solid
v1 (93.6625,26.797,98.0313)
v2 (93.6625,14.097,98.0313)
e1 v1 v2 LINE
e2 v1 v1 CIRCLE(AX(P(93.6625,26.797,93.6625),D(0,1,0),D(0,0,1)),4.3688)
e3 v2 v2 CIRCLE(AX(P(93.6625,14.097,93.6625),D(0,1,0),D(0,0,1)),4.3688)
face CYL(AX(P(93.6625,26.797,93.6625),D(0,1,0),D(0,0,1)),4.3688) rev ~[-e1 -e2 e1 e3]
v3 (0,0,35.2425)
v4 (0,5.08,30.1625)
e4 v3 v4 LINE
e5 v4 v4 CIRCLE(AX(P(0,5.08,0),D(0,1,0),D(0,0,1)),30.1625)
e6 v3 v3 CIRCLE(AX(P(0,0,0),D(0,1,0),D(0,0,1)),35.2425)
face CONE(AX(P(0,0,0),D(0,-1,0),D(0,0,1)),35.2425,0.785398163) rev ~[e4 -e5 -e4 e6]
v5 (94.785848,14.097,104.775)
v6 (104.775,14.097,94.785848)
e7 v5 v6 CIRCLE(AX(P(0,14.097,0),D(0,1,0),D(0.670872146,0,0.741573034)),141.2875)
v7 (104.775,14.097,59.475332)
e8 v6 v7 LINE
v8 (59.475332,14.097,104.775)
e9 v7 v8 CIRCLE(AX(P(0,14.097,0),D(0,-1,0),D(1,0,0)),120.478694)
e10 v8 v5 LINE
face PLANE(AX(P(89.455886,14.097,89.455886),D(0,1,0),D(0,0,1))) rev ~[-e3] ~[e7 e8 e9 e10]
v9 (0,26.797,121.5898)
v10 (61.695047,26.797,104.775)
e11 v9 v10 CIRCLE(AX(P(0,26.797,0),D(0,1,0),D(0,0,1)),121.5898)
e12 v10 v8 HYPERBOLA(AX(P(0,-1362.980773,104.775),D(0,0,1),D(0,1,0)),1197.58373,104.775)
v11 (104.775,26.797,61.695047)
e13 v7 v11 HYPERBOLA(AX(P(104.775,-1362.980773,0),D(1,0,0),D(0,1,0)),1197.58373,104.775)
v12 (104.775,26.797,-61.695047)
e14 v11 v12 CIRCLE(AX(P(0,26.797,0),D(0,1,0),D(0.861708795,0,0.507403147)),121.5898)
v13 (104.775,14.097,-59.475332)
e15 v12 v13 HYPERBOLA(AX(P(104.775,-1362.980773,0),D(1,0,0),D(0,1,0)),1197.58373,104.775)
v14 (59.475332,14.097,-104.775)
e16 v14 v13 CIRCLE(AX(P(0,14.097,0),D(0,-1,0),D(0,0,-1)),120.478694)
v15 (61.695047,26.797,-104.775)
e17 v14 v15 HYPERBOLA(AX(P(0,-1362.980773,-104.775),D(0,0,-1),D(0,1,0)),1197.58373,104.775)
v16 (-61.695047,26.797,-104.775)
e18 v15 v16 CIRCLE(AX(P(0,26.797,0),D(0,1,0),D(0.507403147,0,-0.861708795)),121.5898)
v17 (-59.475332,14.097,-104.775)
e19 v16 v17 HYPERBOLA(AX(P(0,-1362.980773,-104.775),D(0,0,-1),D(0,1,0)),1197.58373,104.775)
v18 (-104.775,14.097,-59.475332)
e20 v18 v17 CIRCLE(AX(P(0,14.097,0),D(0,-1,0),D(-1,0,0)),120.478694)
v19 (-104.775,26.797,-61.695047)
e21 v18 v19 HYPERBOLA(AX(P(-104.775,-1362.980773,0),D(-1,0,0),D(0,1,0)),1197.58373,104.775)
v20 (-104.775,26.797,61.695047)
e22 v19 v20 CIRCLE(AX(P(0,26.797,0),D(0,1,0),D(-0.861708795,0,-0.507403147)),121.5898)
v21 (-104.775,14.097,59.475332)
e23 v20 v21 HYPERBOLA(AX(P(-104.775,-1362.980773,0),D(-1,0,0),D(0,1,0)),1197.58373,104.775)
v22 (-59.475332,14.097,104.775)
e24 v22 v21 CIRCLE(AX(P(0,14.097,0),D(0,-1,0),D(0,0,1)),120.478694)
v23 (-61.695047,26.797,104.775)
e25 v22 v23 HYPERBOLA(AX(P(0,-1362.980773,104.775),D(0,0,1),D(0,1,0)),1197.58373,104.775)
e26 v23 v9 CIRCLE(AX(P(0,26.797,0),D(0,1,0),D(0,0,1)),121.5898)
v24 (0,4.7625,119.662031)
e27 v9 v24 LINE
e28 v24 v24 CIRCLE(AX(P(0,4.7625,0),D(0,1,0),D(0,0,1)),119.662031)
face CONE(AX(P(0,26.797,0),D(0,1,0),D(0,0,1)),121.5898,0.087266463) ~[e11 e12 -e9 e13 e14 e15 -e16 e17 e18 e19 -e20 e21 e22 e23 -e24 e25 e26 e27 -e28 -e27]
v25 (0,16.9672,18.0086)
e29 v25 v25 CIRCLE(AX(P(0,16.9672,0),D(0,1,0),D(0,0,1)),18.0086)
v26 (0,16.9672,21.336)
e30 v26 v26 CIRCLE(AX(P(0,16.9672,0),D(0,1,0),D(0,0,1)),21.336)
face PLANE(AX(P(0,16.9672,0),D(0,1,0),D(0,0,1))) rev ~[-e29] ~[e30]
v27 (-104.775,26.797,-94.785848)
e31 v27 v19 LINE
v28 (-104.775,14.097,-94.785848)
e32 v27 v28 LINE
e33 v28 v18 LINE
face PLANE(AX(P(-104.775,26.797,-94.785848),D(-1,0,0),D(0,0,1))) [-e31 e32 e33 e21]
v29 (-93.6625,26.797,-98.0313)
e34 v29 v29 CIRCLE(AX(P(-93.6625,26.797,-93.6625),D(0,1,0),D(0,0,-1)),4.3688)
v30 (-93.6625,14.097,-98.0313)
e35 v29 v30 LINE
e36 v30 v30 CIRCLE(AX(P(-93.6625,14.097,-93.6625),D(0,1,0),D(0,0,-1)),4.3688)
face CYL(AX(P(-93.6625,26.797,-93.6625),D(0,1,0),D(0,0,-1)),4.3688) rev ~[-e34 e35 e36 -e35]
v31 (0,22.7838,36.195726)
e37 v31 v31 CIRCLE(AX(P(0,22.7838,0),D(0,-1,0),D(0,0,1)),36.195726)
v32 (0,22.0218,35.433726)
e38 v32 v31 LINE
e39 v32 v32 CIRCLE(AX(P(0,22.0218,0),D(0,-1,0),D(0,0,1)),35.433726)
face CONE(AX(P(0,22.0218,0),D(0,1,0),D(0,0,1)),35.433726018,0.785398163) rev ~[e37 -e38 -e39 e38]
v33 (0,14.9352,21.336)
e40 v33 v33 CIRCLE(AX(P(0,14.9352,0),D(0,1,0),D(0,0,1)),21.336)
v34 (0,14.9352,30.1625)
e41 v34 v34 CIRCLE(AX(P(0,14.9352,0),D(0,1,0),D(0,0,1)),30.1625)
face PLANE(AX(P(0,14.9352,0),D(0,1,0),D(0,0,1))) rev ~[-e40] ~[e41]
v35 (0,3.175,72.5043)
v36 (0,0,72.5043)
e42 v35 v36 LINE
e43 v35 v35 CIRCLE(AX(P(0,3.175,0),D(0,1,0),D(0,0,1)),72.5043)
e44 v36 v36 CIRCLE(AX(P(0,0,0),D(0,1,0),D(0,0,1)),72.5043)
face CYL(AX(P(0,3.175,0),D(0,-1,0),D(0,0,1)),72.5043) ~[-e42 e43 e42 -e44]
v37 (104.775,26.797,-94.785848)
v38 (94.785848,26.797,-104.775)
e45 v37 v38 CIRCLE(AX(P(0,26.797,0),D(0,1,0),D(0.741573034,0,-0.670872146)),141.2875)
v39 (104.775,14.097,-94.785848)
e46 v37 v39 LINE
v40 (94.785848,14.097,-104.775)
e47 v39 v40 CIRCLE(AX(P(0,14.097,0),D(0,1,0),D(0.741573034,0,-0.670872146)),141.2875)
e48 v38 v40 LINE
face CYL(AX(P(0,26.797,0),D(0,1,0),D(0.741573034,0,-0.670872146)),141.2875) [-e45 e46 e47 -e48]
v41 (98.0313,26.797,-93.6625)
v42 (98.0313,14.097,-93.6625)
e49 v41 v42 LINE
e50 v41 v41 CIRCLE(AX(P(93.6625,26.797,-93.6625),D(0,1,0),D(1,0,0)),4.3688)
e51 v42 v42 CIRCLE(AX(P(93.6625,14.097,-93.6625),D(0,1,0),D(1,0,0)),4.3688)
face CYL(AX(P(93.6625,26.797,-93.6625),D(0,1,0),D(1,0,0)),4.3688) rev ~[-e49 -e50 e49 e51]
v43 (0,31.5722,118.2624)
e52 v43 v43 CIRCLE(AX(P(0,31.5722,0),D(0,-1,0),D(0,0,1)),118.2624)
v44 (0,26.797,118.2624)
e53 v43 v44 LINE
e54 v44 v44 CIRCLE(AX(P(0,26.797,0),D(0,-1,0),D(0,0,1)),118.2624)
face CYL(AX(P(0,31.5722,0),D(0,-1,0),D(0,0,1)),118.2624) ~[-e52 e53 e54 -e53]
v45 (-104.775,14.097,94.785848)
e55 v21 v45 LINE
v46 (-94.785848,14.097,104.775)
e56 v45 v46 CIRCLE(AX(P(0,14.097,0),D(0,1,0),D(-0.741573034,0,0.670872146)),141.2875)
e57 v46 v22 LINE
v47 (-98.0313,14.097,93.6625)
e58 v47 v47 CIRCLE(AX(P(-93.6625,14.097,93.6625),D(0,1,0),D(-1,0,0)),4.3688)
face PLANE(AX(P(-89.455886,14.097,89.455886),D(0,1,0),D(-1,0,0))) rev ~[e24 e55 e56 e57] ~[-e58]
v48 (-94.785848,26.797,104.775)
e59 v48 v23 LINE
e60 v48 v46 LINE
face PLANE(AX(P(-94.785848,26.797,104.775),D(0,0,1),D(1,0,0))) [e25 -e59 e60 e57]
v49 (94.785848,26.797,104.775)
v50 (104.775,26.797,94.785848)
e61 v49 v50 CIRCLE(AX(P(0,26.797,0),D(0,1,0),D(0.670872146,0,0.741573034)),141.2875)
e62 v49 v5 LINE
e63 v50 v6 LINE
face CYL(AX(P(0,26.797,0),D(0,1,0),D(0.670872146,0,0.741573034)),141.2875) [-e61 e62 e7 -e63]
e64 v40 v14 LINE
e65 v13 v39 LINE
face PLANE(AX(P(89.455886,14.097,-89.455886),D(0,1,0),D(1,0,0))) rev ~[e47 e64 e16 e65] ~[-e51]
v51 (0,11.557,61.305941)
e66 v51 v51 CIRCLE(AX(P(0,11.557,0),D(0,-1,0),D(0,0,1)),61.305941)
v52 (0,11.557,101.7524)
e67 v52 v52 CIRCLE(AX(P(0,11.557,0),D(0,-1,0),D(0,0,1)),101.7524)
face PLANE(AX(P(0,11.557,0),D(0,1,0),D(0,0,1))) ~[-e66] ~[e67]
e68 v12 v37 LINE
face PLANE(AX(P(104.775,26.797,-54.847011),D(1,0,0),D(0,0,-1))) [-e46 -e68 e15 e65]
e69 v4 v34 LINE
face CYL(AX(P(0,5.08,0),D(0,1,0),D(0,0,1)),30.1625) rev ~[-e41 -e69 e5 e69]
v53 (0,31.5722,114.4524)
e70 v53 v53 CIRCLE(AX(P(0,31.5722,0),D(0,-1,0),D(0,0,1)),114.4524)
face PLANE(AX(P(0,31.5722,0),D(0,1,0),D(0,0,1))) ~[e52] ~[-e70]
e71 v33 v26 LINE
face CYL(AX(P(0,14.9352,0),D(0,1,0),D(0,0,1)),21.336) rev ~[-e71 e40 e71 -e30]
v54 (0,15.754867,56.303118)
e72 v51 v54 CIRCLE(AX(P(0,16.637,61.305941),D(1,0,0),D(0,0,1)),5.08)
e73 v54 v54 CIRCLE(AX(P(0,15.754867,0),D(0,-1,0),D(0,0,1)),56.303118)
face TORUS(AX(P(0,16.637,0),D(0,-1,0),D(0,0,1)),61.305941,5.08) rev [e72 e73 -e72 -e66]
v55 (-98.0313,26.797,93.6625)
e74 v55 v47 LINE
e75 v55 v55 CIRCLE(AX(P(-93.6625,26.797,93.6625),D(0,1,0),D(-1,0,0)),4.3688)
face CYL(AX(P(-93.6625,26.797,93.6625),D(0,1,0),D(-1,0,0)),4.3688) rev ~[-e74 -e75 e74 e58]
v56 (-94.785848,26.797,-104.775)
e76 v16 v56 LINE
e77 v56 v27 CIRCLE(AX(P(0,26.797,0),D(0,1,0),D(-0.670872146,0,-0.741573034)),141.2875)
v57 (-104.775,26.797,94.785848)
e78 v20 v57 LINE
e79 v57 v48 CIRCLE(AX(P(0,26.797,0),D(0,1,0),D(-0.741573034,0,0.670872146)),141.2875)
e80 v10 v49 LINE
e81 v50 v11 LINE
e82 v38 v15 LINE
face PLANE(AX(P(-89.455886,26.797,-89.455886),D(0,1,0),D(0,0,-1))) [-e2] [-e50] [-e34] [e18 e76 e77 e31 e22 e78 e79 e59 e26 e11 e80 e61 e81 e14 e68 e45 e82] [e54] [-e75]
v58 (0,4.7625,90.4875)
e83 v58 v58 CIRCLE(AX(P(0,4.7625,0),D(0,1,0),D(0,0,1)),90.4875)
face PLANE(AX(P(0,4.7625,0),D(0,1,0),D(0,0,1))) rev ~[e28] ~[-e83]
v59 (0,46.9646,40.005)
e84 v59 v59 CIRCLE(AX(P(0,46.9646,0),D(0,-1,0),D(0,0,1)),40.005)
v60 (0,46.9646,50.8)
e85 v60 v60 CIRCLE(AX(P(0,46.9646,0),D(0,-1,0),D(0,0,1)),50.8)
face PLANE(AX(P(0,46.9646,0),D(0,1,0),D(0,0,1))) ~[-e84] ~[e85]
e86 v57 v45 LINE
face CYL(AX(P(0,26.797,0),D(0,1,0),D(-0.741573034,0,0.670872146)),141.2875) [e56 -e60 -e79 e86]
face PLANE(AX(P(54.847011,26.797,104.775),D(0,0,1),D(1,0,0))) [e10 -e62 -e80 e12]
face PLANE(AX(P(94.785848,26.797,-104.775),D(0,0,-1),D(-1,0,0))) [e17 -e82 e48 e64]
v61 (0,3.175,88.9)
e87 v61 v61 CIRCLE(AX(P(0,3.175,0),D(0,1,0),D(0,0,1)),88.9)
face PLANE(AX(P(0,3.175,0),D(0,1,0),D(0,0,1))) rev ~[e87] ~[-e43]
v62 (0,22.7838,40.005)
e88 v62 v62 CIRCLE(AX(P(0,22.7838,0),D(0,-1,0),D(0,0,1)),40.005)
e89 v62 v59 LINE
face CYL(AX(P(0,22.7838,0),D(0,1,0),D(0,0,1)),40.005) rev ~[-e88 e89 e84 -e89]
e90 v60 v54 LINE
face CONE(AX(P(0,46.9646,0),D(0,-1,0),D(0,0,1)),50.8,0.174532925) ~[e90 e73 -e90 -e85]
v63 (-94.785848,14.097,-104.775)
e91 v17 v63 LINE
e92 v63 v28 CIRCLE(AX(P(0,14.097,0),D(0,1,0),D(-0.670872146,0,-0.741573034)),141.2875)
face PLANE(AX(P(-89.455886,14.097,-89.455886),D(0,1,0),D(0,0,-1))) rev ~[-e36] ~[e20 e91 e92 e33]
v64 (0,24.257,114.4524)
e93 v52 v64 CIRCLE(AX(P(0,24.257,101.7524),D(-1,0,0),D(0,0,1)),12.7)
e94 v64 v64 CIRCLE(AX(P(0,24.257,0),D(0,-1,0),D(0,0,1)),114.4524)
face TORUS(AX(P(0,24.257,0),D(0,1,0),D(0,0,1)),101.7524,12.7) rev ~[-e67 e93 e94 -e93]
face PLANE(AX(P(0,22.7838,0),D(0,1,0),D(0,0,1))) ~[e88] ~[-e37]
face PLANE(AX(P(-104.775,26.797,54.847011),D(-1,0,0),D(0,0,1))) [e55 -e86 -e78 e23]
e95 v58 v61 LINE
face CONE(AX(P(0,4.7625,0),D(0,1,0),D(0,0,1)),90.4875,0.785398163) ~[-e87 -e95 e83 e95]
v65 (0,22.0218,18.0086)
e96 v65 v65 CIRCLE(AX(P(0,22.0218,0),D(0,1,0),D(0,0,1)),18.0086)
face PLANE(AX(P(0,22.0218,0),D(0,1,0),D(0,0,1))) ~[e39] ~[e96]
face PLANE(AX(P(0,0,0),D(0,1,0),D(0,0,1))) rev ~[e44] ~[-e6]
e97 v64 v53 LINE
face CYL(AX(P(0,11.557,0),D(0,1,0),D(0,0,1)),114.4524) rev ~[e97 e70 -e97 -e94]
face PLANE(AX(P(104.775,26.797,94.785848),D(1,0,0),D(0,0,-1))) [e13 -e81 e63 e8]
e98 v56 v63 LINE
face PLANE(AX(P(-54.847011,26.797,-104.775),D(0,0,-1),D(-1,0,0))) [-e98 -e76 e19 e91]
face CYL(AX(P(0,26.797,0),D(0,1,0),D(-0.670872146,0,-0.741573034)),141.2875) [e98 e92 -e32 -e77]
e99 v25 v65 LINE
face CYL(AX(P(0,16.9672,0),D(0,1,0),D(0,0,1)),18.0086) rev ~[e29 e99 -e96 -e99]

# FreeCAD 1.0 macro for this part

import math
import FreeCAD as App
import Part
import Sketcher

V = App.Vector
Q = App.Units.Quantity


def edges_at(feature, points):
    """Names of the edges that pass closest to the given points."""
    edges = feature.Shape.Edges
    near = lambda p: min(range(len(edges)), key=lambda i: edges[i].distToShape(Part.Vertex(*p))[0])
    return sorted({f"Edge{near(p) + 1}" for p in points})

doc = App.newDocument("Part")
body = doc.addObject("PartDesign::Body", "Body")

sketch1 = doc.addObject("Sketcher::SketchObject", "Sketch")
body.addObject(sketch1)
sketch1.AttachmentSupport = (doc.YZ_Plane, [""])
sketch1.MapMode = "FlatFace"
sketch1.addGeometry([
    Part.LineSegment(V(0, 72.5043, 0), V(0, 35.2425, 0)),
    Part.LineSegment(V(0, 35.2425, 0), V(5.08, 30.1625, 0)),
    Part.LineSegment(V(5.08, 30.1625, 0), V(14.9352, 30.1625, 0)),
    Part.LineSegment(V(14.9352, 30.1625, 0), V(14.9352, 21.336, 0)),
    Part.LineSegment(V(14.9352, 21.336, 0), V(16.9672, 21.336, 0)),
    Part.LineSegment(V(16.9672, 21.336, 0), V(16.9672, 18.0086, 0)),
    Part.LineSegment(V(16.9672, 18.0086, 0), V(22.0218, 18.0086, 0)),
    Part.LineSegment(V(22.0218, 18.0086, 0), V(22.0218, 35.433726, 0)),
    Part.LineSegment(V(22.0218, 35.433726, 0), V(22.7838, 36.195726, 0)),
    Part.LineSegment(V(22.7838, 36.195726, 0), V(22.7838, 40.005, 0)),
    Part.LineSegment(V(22.7838, 40.005, 0), V(46.9646, 40.005, 0)),
    Part.LineSegment(V(46.9646, 40.005, 0), V(46.9646, 50.8, 0)),
    Part.LineSegment(V(46.9646, 50.8, 0), V(11.557, 57.043315, 0)),
    Part.LineSegment(V(11.557, 57.043315, 0), V(11.557, 114.4524, 0)),
    Part.LineSegment(V(11.557, 114.4524, 0), V(31.5722, 114.4524, 0)),
    Part.LineSegment(V(31.5722, 114.4524, 0), V(31.5722, 118.2624, 0)),
    Part.LineSegment(V(31.5722, 118.2624, 0), V(26.797, 118.2624, 0)),
    Part.LineSegment(V(26.797, 118.2624, 0), V(26.797, 121.5898, 0)),
    Part.LineSegment(V(26.797, 121.5898, 0), V(4.7625, 119.662031, 0)),
    Part.LineSegment(V(4.7625, 119.662031, 0), V(4.7625, 90.4875, 0)),
    Part.LineSegment(V(4.7625, 90.4875, 0), V(3.175, 88.9, 0)),
    Part.LineSegment(V(3.175, 88.9, 0), V(3.175, 72.5043, 0)),
    Part.LineSegment(V(3.175, 72.5043, 0), V(0, 72.5043, 0)),
], False)
sketch1.addConstraint([
    Sketcher.Constraint("Coincident", 0, 2, 1, 1),
    Sketcher.Constraint("Coincident", 1, 2, 2, 1),
    Sketcher.Constraint("Coincident", 2, 2, 3, 1),
    Sketcher.Constraint("Coincident", 3, 2, 4, 1),
    Sketcher.Constraint("Coincident", 4, 2, 5, 1),
    Sketcher.Constraint("Coincident", 5, 2, 6, 1),
    Sketcher.Constraint("Coincident", 6, 2, 7, 1),
    Sketcher.Constraint("Coincident", 7, 2, 8, 1),
    Sketcher.Constraint("Coincident", 8, 2, 9, 1),
    Sketcher.Constraint("Coincident", 9, 2, 10, 1),
    Sketcher.Constraint("Coincident", 10, 2, 11, 1),
    Sketcher.Constraint("Coincident", 11, 2, 12, 1),
    Sketcher.Constraint("Coincident", 12, 2, 13, 1),
    Sketcher.Constraint("Coincident", 13, 2, 14, 1),
    Sketcher.Constraint("Coincident", 14, 2, 15, 1),
    Sketcher.Constraint("Coincident", 15, 2, 16, 1),
    Sketcher.Constraint("Coincident", 16, 2, 17, 1),
    Sketcher.Constraint("Coincident", 17, 2, 18, 1),
    Sketcher.Constraint("Coincident", 18, 2, 19, 1),
    Sketcher.Constraint("Coincident", 19, 2, 20, 1),
    Sketcher.Constraint("Coincident", 20, 2, 21, 1),
    Sketcher.Constraint("Coincident", 21, 2, 22, 1),
    Sketcher.Constraint("Coincident", 22, 2, 0, 1),
    Sketcher.Constraint("Vertical", 0),
    Sketcher.Constraint("Horizontal", 2),
    Sketcher.Constraint("Vertical", 3),
    Sketcher.Constraint("Horizontal", 4),
    Sketcher.Constraint("Vertical", 5),
    Sketcher.Constraint("Horizontal", 6),
    Sketcher.Constraint("Vertical", 7),
    Sketcher.Constraint("Vertical", 9),
    Sketcher.Constraint("Horizontal", 10),
    Sketcher.Constraint("Vertical", 11),
    Sketcher.Constraint("Vertical", 13),
    Sketcher.Constraint("Horizontal", 14),
    Sketcher.Constraint("Vertical", 15),
    Sketcher.Constraint("Horizontal", 16),
    Sketcher.Constraint("Vertical", 17),
    Sketcher.Constraint("Vertical", 19),
    Sketcher.Constraint("Vertical", 21),
    Sketcher.Constraint("Horizontal", 22),
    Sketcher.Constraint("PointOnObject", 0, 2, -2),
    Sketcher.Constraint("Perpendicular", 1, 8),
    Sketcher.Constraint("Parallel", 8, 20),
    Sketcher.Constraint("Equal", 5, 17),
    Sketcher.Constraint("DistanceY", -1, 1, 11, 2, Q("2 in")),
    Sketcher.Constraint("Angle", 1, Q("-45 deg")),
    Sketcher.Constraint("Angle", 12, Q("170 deg")),
    Sketcher.Constraint("Angle", 18, Q("-175 deg")),
    Sketcher.Constraint("DistanceX", 4, 1, 4, 2, Q("0.08 in")),
    Sketcher.Constraint("DistanceY", 15, 1, 15, 2, Q("0.15 in")),
    Sketcher.Constraint("DistanceX", -1, 1, 1, 2, Q("0.2 in")),
    Sketcher.Constraint("DistanceY", -1, 1, 20, 2, Q("3.5 in")),
    Sketcher.Constraint("DistanceX", 13, 2, 16, 2, Q("0.6 in")),
    Sketcher.Constraint("DistanceX", 2, 1, 2, 2, Q("0.388 in")),
    Sketcher.Constraint("DistanceX", 6, 1, 6, 2, Q("0.199 in")),
    Sketcher.Constraint("DistanceX", 10, 1, 10, 2, Q("0.952 in")),
    Sketcher.Constraint("DistanceX", 14, 1, 14, 2, Q("0.788 in")),
    Sketcher.Constraint("DistanceX", 22, 2, 22, 1, Q("0.125 in")),
    Sketcher.Constraint("DistanceY", 0, 2, 0, 1, Q("1.467 in")),
    Sketcher.Constraint("DistanceY", 5, 2, 5, 1, Q("0.131 in")),
    Sketcher.Constraint("DistanceY", 11, 1, 11, 2, Q("0.425 in")),
    Sketcher.Constraint("DistanceY", -1, 1, 3, 2, Q("0.84 in")),
    Sketcher.Constraint("DistanceX", 7, 2, 8, 2, Q("0.03 in")),
    Sketcher.Constraint("DistanceX", 20, 2, 13, 2, Q("0.33 in")),
    Sketcher.Constraint("DistanceY", 3, 2, 3, 1, Q("0.3475 in")),
    Sketcher.Constraint("DistanceY", 13, 1, 13, 2, Q("2.2602002 in")),
    Sketcher.Constraint("DistanceX", -1, 1, 18, 2, Q("0.1875 in")),
    Sketcher.Constraint("DistanceY", 7, 1, 7, 2, 17.425126),
])
revolution = doc.addObject("PartDesign::Revolution", "Revolution")
body.addObject(revolution)
revolution.Profile = sketch1
revolution.ReferenceAxis = (sketch1, ["H_Axis"])
revolution.Angle = 360
doc.recompute()

fillet = doc.addObject("PartDesign::Fillet", "Fillet")
body.addObject(fillet)
fillet.Base = (revolution, edges_at(revolution, [(0, 11.557, -114.452)]))
fillet.Radius = Q("0.5 in")
doc.recompute()

fillet2 = doc.addObject("PartDesign::Fillet", "Fillet001")
body.addObject(fillet2)
fillet2.Base = (fillet, edges_at(fillet, [(0, 11.557, -57.043)]))
fillet2.Radius = Q("0.2 in")

sketch2 = doc.addObject("Sketcher::SketchObject", "Sketch001")
body.addObject(sketch2)
sketch2.AttachmentSupport = (doc.XZ_Plane, [""])
sketch2.MapMode = "FlatFace"
sketch2.AttachmentOffset = App.Placement(V(0, 0, -1.055 * 25.4), App.Rotation())
sketch2.addGeometry([
    Part.ArcOfCircle(Part.Circle(V(0, 0, 0), V(0, 0, 1), 141.2875), math.radians(132.134413), math.radians(137.865587)),
    Part.LineSegment(V(-94.785848, 104.775, 0), V(-54.847011, 104.775, 0)),
    Part.ArcOfCircle(Part.Circle(V(0, 0, 0), V(0, 0, 1), 118.2624), math.radians(117.630898), math.radians(152.369102)),
    Part.LineSegment(V(-104.775, 54.847011, 0), V(-104.775, 94.785848, 0)),
    Part.Circle(V(-93.6625, 93.6625, 0), V(0, 0, 1), 4.3688),
], False)
sketch2.addConstraint([
    Sketcher.Constraint("Coincident", 0, 1, 1, 1),
    Sketcher.Constraint("Coincident", 1, 2, 2, 1),
    Sketcher.Constraint("Coincident", 2, 2, 3, 1),
    Sketcher.Constraint("Coincident", 3, 2, 0, 2),
    Sketcher.Constraint("Horizontal", 1),
    Sketcher.Constraint("Vertical", 3),
    Sketcher.Constraint("Coincident", 0, 3, -1, 1),
    Sketcher.Constraint("Coincident", 2, 3, -1, 1),
    Sketcher.Constraint("Equal", 1, 3),
    Sketcher.Constraint("Diameter", 4, Q("0.344 in")),
    Sketcher.Constraint("Radius", 0, Q("5.5625 in")),
    Sketcher.Constraint("Radius", 2, Q("4.656 in")),
    Sketcher.Constraint("DistanceX", 4, 3, -1, 1, Q("3.6875 in")),
    Sketcher.Constraint("DistanceY", -1, 1, 4, 3, Q("3.6875 in")),
    Sketcher.Constraint("DistanceY", -1, 1, 0, 1, Q("4.125 in")),
])
pad1 = doc.addObject("PartDesign::Pad", "Pad")
body.addObject(pad1)
pad1.Profile = sketch2
pad1.Length = Q("0.5 in")
body2 = doc.addObject("PartDesign::Body", "Body001")
doc.recompute()

body2.BaseFeature = body
doc.recompute()

body3 = doc.addObject("PartDesign::Body", "Body002")
body3.BaseFeature = body
body3.Placement = App.Placement(V(0, 0, 0), App.Rotation(V(0, 1, 0), 90))
boolean = doc.addObject("PartDesign::Boolean", "Boolean")
body2.addObject(boolean)
boolean.Type = "Fuse"
boolean.addObjects([body3])
doc.recompute()

body4 = doc.addObject("PartDesign::Body", "Body003")
body4.BaseFeature = body
body4.Placement = App.Placement(V(0, 0, 0), App.Rotation(V(0, 1, 0), 180))
boolean2 = doc.addObject("PartDesign::Boolean", "Boolean001")
body2.addObject(boolean2)
boolean2.Type = "Fuse"
boolean2.addObjects([body4])
doc.recompute()

body.Placement = App.Placement(V(0, 0, 0), App.Rotation(V(0, 1, 0), 270))
boolean3 = doc.addObject("PartDesign::Boolean", "Boolean002")
body2.addObject(boolean3)
boolean3.Type = "Fuse"
boolean3.addObjects([body])

doc.recompute()
